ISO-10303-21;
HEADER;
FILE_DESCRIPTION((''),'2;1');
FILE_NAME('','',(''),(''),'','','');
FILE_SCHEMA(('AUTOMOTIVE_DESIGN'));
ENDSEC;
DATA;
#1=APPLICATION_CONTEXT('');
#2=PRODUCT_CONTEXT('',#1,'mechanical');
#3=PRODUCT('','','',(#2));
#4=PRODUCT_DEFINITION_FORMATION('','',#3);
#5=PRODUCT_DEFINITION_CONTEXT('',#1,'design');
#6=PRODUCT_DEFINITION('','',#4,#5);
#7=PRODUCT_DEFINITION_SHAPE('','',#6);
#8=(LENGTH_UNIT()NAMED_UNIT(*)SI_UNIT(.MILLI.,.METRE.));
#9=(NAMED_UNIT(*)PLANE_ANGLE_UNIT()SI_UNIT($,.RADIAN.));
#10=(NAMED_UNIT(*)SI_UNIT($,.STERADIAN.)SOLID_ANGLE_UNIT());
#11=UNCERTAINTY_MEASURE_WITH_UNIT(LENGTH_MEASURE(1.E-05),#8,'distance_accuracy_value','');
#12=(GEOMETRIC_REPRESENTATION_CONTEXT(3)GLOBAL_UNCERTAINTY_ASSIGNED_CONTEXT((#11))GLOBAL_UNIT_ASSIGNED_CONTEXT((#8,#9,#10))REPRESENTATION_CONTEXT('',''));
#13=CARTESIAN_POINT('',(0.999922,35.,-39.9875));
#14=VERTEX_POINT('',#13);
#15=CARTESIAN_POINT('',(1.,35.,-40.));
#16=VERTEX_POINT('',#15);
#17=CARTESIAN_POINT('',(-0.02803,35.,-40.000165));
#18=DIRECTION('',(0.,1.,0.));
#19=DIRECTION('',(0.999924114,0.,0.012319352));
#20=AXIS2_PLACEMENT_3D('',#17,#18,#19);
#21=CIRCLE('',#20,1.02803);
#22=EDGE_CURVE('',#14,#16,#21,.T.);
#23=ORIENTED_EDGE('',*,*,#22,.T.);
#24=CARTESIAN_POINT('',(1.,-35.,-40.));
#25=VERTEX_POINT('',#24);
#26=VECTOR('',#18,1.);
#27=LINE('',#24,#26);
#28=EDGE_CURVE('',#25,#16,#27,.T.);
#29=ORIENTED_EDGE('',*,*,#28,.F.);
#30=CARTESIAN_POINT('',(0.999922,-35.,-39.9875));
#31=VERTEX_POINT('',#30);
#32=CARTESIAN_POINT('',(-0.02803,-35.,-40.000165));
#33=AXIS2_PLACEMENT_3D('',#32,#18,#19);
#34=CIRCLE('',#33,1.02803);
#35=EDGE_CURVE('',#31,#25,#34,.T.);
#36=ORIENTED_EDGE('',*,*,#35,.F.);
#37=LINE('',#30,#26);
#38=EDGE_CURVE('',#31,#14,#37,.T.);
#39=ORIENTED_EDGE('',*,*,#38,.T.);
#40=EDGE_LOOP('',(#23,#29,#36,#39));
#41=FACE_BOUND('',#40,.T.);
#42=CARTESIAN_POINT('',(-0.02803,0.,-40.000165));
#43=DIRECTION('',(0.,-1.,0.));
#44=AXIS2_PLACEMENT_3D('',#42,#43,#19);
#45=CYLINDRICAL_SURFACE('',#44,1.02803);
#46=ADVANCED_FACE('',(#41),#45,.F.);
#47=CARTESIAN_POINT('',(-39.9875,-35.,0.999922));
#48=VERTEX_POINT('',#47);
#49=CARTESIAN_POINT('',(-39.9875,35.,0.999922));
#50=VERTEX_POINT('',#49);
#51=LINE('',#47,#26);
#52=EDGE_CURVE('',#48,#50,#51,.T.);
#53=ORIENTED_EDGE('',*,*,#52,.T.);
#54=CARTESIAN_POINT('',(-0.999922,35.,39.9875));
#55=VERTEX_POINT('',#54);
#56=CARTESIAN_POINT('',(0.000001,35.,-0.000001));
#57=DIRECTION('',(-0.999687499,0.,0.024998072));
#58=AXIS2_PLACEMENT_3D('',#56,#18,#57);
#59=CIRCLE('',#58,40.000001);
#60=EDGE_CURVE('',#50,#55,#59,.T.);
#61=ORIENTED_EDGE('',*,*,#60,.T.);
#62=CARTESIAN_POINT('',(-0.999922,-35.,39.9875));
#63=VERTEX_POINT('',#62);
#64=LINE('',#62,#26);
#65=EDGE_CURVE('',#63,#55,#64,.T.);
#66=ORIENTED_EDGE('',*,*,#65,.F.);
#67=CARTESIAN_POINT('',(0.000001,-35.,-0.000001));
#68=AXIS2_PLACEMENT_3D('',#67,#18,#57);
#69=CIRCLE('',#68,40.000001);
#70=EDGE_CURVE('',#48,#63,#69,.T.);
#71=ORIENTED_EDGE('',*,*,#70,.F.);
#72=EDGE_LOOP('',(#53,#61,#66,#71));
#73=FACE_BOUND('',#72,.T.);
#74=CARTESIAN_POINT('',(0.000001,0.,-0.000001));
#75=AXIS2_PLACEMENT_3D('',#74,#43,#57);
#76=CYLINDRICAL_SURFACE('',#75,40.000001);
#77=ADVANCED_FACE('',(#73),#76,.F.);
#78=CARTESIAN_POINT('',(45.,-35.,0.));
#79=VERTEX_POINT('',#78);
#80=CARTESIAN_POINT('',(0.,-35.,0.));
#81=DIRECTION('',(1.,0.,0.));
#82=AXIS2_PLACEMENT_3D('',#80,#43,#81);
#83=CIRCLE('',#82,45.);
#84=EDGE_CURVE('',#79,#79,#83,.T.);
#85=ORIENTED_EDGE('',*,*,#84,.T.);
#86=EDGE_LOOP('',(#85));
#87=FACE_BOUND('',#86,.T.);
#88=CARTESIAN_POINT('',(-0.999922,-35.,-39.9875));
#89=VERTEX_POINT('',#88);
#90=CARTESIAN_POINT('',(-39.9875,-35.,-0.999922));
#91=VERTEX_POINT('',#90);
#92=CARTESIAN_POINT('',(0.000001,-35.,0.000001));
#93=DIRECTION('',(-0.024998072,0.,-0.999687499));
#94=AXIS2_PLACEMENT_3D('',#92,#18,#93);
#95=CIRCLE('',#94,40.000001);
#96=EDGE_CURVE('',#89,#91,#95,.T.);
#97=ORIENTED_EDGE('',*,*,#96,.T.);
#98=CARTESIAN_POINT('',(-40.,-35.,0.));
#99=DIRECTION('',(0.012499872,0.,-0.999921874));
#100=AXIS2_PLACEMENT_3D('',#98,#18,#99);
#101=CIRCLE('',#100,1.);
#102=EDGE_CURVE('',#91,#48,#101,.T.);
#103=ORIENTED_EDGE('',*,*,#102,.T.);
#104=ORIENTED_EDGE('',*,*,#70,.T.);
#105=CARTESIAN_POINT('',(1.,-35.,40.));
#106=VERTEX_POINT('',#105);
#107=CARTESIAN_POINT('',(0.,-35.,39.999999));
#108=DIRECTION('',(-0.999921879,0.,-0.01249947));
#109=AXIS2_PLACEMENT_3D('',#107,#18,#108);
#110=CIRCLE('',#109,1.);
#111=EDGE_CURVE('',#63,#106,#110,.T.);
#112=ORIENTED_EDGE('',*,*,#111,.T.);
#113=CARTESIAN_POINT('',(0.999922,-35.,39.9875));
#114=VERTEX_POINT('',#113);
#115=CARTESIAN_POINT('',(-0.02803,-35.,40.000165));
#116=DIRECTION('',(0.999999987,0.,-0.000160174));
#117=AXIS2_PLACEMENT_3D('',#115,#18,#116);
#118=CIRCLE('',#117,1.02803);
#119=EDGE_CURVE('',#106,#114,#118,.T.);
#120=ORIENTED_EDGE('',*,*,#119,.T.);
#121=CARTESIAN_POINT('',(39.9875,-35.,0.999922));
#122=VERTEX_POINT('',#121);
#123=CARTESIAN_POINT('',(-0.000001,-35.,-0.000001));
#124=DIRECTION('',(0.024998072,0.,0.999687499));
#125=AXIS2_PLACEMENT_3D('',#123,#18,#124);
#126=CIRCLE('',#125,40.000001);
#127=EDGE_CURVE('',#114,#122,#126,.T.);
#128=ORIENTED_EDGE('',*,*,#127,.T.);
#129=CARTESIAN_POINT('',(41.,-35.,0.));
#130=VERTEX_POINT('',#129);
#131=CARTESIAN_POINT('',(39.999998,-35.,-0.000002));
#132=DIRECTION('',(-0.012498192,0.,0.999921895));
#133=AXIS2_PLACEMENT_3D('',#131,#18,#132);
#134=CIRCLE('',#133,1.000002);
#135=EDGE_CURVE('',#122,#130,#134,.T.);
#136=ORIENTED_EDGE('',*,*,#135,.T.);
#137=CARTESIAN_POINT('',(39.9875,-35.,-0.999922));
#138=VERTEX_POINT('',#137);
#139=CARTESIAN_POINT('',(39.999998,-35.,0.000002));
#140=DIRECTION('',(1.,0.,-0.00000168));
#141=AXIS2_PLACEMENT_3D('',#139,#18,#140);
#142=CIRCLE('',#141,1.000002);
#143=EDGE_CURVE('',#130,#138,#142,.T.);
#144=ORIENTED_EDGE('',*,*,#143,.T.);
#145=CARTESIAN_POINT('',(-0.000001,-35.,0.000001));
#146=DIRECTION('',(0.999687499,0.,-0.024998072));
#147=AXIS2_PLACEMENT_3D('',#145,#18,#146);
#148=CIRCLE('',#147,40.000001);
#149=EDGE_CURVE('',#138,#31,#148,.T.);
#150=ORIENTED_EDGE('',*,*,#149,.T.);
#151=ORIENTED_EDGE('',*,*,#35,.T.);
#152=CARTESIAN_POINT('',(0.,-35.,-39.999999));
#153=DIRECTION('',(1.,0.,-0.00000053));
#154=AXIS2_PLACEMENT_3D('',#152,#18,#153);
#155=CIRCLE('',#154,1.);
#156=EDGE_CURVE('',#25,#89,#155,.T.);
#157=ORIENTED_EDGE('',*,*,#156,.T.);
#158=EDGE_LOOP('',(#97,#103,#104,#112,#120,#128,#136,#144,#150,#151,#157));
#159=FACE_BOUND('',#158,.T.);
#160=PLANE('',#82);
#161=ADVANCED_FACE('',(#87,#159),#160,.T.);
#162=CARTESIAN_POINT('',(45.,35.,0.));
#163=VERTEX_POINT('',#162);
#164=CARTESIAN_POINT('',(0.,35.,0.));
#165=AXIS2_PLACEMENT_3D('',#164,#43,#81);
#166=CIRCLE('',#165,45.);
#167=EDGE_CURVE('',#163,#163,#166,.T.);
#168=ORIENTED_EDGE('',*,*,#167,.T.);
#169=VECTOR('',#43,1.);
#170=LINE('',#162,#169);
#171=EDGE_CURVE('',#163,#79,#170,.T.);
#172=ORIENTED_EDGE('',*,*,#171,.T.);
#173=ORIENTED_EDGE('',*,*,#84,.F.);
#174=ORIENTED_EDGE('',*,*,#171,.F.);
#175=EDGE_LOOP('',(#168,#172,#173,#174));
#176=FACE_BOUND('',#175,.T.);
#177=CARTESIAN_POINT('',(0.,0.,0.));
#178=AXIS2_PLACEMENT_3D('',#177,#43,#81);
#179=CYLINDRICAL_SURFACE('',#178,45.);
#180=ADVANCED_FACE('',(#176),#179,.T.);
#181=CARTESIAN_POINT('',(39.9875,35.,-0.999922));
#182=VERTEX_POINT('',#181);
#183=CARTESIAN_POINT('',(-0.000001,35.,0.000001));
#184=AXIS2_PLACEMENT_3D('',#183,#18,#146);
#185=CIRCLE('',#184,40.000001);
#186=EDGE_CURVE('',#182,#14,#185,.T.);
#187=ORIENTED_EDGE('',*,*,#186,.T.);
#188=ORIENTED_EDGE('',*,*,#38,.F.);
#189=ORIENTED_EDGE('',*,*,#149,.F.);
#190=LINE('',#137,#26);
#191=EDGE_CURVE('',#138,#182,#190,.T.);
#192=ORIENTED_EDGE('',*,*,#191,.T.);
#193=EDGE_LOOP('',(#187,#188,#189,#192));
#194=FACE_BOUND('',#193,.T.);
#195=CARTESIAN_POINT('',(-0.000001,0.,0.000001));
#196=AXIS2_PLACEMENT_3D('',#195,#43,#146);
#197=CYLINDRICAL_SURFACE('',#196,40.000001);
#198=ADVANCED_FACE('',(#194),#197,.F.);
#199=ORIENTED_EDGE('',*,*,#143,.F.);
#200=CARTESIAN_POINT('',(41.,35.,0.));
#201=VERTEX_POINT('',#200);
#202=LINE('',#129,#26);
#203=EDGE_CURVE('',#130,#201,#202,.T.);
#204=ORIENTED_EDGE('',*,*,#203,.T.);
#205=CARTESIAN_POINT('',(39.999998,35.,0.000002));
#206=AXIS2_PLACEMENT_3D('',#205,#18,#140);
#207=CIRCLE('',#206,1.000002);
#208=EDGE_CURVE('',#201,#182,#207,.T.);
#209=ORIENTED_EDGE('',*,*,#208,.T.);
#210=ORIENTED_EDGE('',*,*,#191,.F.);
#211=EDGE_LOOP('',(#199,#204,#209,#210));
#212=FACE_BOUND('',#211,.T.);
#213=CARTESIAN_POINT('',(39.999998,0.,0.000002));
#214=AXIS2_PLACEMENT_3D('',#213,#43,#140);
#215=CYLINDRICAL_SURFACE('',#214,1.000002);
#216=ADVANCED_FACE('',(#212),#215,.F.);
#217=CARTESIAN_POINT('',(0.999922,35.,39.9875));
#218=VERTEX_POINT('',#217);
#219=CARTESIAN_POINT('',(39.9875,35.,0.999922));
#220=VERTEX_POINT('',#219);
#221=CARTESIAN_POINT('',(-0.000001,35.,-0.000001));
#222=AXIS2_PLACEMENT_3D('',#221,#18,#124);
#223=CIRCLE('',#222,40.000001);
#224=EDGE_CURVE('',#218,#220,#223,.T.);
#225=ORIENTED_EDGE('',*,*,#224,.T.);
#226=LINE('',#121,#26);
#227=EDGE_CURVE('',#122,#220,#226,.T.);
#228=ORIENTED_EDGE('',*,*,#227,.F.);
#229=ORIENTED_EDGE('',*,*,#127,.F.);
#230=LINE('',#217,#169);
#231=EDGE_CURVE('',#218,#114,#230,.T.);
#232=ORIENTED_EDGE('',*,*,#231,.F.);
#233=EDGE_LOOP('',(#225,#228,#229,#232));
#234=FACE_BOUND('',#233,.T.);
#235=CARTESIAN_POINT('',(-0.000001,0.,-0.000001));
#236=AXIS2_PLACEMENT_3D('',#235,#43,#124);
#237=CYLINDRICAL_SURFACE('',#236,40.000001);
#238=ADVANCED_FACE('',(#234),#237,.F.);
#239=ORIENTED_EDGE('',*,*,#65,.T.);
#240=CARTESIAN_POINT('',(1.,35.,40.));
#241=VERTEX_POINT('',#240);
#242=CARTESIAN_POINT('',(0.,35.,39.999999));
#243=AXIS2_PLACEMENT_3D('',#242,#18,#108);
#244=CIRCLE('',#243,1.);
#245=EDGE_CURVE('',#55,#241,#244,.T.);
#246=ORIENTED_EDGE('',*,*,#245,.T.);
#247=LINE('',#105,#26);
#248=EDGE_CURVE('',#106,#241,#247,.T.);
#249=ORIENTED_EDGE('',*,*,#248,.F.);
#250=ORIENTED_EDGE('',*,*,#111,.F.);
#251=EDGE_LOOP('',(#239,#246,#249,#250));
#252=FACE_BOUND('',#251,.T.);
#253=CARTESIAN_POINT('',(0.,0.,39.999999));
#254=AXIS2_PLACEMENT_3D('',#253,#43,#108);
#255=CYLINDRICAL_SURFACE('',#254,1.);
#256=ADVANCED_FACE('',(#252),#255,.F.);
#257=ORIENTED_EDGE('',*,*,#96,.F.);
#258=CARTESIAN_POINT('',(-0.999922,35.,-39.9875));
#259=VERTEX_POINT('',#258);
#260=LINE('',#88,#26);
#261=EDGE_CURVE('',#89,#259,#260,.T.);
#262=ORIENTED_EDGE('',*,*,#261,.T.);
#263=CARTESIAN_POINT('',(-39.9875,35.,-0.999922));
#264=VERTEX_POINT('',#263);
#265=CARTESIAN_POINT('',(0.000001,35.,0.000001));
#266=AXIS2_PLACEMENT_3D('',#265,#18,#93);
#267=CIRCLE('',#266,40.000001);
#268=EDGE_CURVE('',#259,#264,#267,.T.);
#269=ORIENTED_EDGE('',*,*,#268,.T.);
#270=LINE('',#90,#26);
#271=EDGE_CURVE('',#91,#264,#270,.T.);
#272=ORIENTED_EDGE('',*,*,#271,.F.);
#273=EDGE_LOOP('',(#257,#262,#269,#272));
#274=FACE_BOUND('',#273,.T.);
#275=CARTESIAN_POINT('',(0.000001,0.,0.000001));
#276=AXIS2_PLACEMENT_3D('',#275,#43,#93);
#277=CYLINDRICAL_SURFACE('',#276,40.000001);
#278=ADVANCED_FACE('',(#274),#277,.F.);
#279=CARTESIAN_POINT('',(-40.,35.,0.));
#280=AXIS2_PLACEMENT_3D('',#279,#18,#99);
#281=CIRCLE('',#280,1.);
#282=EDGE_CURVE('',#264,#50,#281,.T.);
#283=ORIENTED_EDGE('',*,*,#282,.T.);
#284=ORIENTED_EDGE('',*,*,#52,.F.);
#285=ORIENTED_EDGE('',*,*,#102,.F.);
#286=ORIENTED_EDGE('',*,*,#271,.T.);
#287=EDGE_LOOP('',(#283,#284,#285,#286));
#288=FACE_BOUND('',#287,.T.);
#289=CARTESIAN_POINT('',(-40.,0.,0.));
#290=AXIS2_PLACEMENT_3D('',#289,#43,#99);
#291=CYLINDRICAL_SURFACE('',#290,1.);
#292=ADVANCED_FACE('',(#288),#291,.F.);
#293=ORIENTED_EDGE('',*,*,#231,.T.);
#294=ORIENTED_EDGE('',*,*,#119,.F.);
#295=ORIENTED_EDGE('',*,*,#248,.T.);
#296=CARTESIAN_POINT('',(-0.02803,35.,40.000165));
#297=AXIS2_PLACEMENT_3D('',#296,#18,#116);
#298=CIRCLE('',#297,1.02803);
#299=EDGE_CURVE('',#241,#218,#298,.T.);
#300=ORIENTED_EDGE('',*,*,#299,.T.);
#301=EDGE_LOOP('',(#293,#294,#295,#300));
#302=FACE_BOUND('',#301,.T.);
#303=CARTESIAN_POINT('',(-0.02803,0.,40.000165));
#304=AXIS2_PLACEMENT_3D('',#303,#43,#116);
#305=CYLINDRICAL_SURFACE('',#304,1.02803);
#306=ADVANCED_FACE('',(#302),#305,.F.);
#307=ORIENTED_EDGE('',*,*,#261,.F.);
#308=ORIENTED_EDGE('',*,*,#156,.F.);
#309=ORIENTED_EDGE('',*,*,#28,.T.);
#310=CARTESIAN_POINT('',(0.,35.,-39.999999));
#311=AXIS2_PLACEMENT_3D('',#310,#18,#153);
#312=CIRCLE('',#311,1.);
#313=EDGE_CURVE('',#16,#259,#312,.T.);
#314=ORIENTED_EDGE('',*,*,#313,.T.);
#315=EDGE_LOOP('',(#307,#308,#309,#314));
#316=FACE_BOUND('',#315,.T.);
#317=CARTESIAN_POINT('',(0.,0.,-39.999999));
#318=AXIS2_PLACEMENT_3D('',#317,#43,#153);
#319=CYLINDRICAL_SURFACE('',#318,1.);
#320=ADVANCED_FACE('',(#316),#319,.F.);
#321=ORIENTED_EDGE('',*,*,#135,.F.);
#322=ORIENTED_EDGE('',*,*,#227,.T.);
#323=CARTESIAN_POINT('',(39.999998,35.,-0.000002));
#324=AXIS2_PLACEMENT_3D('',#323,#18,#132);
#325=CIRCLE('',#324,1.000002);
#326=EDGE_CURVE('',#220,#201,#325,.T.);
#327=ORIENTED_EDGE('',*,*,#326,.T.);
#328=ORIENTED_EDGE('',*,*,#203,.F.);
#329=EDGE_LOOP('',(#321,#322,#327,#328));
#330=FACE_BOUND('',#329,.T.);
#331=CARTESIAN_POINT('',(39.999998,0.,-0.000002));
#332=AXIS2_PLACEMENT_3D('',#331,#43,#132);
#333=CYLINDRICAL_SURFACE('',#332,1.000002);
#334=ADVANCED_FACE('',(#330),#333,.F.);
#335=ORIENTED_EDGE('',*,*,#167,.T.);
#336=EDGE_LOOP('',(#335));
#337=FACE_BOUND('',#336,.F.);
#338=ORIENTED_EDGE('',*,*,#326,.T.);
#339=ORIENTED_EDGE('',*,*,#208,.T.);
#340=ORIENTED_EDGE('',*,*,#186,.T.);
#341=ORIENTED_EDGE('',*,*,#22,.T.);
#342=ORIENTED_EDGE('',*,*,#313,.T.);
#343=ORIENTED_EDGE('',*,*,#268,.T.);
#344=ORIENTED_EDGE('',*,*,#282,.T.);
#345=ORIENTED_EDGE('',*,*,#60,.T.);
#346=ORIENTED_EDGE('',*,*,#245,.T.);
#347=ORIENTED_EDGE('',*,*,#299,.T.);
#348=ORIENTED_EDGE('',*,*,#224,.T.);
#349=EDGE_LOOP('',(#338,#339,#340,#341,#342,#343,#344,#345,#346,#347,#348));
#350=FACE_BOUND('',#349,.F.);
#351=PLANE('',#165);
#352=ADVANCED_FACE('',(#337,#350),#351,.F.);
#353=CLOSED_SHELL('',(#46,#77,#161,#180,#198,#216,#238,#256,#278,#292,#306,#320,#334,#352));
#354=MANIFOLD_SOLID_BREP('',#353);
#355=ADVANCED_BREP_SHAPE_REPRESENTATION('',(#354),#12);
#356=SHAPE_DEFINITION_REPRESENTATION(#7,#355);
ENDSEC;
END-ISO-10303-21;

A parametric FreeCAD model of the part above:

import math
import FreeCAD as App
import Part
import Sketcher

V = App.Vector

doc = App.newDocument("Part")
params = doc.addObject("Spreadsheet::Sheet", "Params")
for row, (alias, value) in enumerate([
    ("sketch1_diameter", "90 mm"),
    ("sketch1_radius", "40.000001 mm"),
    ("sketch1_radius2", "1.000002 mm"),
    ("sketch1_radius3", "40.000001 mm"),
    ("sketch1_radius4", "1 mm"),
    ("pad1_length", "70 mm"),
], start=1):
    params.set(f"A{row}", alias)
    params.set(f"B{row}", "=" + value)
    params.setAlias(f"B{row}", alias)

body = doc.addObject("PartDesign::Body", "Body")

sketch1 = body.newObject("Sketcher::SketchObject", "Sketch")
sketch1.AttachmentSupport = (doc.getObject("XZ_Plane"), [""])
sketch1.MapMode = "FlatFace"
sketch1.addGeometry([
    Part.Circle(V(0, 0, 0), V(0, 0, 1), 45),
    Part.ArcOfCircle(Part.Circle(V(-0.02803, 40.000165, 0), V(0, 0, 1), 1.02803), math.radians(-0.705865), math.radians(-0.009177)),
    Part.ArcOfCircle(Part.Circle(V(-0.000001, -0.000001, 0), V(0, 0, 1), 40.000001), math.radians(1.432433), math.radians(88.567567)),
    Part.ArcOfCircle(Part.Circle(V(39.999998, -0.000002, 0), V(0, 0, 1), 1.000002), math.radians(0.000096), math.radians(90.716112)),
    Part.ArcOfCircle(Part.Circle(V(39.999998, 0.000002, 0), V(0, 0, 1), 1.000002), math.radians(-90.716112), math.radians(-0.000096)),
    Part.ArcOfCircle(Part.Circle(V(-0.000001, 0.000001, 0), V(0, 0, 1), 40.000001), math.radians(-88.567567), math.radians(-1.432433)),
    Part.ArcOfCircle(Part.Circle(V(-0.02803, -40.000165, 0), V(0, 0, 1), 1.02803), math.radians(0.009177), math.radians(0.705865)),
    Part.ArcOfCircle(Part.Circle(V(0, -39.999999, 0), V(0, 0, 1), 1), math.radians(179.283815), math.radians(359.99997)),
    Part.ArcOfCircle(Part.Circle(V(0.000001, 0.000001, 0), V(0, 0, 1), 40.000001), math.radians(-178.567567), math.radians(-91.432433)),
    Part.ArcOfCircle(Part.Circle(V(-40, 0, 0), V(0, 0, 1), 1), math.radians(89.283791), math.radians(270.716209)),
    Part.ArcOfCircle(Part.Circle(V(0.000001, -0.000001, 0), V(0, 0, 1), 40.000001), math.radians(91.432433), math.radians(178.567567)),
    Part.ArcOfCircle(Part.Circle(V(0, 39.999999, 0), V(0, 0, 1), 1), math.radians(0.00003), math.radians(180.716185)),
], False)
sketch1.addConstraint([
    Sketcher.Constraint("Coincident", 1, 1, 2, 2),
    Sketcher.Constraint("Coincident", 2, 1, 3, 2),
    Sketcher.Constraint("Coincident", 3, 1, 4, 2),
    Sketcher.Constraint("Coincident", 4, 1, 5, 2),
    Sketcher.Constraint("Coincident", 5, 1, 6, 2),
    Sketcher.Constraint("Coincident", 6, 1, 7, 2),
    Sketcher.Constraint("Coincident", 7, 1, 8, 2),
    Sketcher.Constraint("Coincident", 8, 1, 9, 2),
    Sketcher.Constraint("Coincident", 9, 1, 10, 2),
    Sketcher.Constraint("Coincident", 10, 1, 11, 2),
    Sketcher.Constraint("Coincident", 11, 1, 1, 2),
    Sketcher.Constraint("Coincident", 0, 3, -1, 1),
    Sketcher.Constraint("Coincident", 2, 3, -1, 1),
    Sketcher.Constraint("Coincident", 5, 3, -1, 1),
    Sketcher.Constraint("Coincident", 8, 3, -1, 1),
    Sketcher.Constraint("Coincident", 10, 3, -1, 1),
    Sketcher.Constraint("Coincident", 4, 3, 3, 3),
    Sketcher.Constraint("PointOnObject", 3, 3, -1),
    Sketcher.Constraint("PointOnObject", 7, 3, -2),
    Sketcher.Constraint("PointOnObject", 9, 3, -1),
    Sketcher.Constraint("PointOnObject", 11, 3, -2),
    Sketcher.Constraint("PointOnObject", 3, 1, -1),
    Sketcher.Constraint("Diameter", 0, 90.0),
    Sketcher.Constraint("Radius", 2, 40.000001),
    Sketcher.Constraint("Radius", 3, 1.000002),
    Sketcher.Constraint("Radius", 5, 40.000001),
    Sketcher.Constraint("Radius", 7, 1.0),
    Sketcher.Constraint("Radius", 8, 40.000001),
    Sketcher.Constraint("Radius", 9, 1.0),
    Sketcher.Constraint("Radius", 10, 40.000001),
    Sketcher.Constraint("Radius", 11, 1.0),
    Sketcher.Constraint("DistanceX", -1, 1, 3, 3, 39.999998),
    Sketcher.Constraint("DistanceY", 7, 3, -1, 1, 39.999999),
    Sketcher.Constraint("DistanceX", 9, 3, -1, 1, 40.0),
    Sketcher.Constraint("DistanceY", -1, 1, 11, 3, 39.999999),
    Sketcher.Constraint("DistanceY", 6, 1, -1, 1, 40.0),
    Sketcher.Constraint("DistanceY", -1, 1, 11, 1, 40.0),
    Sketcher.Constraint("Radius", 1, 1.02803),
    Sketcher.Constraint("Radius", 6, 1.02803),
    Sketcher.Constraint("DistanceX", -1, 1, 1, 1, 0.999922),
    Sketcher.Constraint("DistanceY", 6, 3, -1, 1, 40.000165),
])
sketch1.setExpression("Constraints[22]", "Params.sketch1_diameter")
sketch1.setExpression("Constraints[23]", "Params.sketch1_radius")
sketch1.setExpression("Constraints[24]", "Params.sketch1_radius2")
sketch1.setExpression("Constraints[25]", "Params.sketch1_radius3")
sketch1.setExpression("Constraints[26]", "Params.sketch1_radius4")
pad1 = body.newObject("PartDesign::Pad", "Pad")
pad1.Profile = sketch1
pad1.setExpression("Length", "Params.pad1_length")
pad1.Midplane = True

doc.recompute()
